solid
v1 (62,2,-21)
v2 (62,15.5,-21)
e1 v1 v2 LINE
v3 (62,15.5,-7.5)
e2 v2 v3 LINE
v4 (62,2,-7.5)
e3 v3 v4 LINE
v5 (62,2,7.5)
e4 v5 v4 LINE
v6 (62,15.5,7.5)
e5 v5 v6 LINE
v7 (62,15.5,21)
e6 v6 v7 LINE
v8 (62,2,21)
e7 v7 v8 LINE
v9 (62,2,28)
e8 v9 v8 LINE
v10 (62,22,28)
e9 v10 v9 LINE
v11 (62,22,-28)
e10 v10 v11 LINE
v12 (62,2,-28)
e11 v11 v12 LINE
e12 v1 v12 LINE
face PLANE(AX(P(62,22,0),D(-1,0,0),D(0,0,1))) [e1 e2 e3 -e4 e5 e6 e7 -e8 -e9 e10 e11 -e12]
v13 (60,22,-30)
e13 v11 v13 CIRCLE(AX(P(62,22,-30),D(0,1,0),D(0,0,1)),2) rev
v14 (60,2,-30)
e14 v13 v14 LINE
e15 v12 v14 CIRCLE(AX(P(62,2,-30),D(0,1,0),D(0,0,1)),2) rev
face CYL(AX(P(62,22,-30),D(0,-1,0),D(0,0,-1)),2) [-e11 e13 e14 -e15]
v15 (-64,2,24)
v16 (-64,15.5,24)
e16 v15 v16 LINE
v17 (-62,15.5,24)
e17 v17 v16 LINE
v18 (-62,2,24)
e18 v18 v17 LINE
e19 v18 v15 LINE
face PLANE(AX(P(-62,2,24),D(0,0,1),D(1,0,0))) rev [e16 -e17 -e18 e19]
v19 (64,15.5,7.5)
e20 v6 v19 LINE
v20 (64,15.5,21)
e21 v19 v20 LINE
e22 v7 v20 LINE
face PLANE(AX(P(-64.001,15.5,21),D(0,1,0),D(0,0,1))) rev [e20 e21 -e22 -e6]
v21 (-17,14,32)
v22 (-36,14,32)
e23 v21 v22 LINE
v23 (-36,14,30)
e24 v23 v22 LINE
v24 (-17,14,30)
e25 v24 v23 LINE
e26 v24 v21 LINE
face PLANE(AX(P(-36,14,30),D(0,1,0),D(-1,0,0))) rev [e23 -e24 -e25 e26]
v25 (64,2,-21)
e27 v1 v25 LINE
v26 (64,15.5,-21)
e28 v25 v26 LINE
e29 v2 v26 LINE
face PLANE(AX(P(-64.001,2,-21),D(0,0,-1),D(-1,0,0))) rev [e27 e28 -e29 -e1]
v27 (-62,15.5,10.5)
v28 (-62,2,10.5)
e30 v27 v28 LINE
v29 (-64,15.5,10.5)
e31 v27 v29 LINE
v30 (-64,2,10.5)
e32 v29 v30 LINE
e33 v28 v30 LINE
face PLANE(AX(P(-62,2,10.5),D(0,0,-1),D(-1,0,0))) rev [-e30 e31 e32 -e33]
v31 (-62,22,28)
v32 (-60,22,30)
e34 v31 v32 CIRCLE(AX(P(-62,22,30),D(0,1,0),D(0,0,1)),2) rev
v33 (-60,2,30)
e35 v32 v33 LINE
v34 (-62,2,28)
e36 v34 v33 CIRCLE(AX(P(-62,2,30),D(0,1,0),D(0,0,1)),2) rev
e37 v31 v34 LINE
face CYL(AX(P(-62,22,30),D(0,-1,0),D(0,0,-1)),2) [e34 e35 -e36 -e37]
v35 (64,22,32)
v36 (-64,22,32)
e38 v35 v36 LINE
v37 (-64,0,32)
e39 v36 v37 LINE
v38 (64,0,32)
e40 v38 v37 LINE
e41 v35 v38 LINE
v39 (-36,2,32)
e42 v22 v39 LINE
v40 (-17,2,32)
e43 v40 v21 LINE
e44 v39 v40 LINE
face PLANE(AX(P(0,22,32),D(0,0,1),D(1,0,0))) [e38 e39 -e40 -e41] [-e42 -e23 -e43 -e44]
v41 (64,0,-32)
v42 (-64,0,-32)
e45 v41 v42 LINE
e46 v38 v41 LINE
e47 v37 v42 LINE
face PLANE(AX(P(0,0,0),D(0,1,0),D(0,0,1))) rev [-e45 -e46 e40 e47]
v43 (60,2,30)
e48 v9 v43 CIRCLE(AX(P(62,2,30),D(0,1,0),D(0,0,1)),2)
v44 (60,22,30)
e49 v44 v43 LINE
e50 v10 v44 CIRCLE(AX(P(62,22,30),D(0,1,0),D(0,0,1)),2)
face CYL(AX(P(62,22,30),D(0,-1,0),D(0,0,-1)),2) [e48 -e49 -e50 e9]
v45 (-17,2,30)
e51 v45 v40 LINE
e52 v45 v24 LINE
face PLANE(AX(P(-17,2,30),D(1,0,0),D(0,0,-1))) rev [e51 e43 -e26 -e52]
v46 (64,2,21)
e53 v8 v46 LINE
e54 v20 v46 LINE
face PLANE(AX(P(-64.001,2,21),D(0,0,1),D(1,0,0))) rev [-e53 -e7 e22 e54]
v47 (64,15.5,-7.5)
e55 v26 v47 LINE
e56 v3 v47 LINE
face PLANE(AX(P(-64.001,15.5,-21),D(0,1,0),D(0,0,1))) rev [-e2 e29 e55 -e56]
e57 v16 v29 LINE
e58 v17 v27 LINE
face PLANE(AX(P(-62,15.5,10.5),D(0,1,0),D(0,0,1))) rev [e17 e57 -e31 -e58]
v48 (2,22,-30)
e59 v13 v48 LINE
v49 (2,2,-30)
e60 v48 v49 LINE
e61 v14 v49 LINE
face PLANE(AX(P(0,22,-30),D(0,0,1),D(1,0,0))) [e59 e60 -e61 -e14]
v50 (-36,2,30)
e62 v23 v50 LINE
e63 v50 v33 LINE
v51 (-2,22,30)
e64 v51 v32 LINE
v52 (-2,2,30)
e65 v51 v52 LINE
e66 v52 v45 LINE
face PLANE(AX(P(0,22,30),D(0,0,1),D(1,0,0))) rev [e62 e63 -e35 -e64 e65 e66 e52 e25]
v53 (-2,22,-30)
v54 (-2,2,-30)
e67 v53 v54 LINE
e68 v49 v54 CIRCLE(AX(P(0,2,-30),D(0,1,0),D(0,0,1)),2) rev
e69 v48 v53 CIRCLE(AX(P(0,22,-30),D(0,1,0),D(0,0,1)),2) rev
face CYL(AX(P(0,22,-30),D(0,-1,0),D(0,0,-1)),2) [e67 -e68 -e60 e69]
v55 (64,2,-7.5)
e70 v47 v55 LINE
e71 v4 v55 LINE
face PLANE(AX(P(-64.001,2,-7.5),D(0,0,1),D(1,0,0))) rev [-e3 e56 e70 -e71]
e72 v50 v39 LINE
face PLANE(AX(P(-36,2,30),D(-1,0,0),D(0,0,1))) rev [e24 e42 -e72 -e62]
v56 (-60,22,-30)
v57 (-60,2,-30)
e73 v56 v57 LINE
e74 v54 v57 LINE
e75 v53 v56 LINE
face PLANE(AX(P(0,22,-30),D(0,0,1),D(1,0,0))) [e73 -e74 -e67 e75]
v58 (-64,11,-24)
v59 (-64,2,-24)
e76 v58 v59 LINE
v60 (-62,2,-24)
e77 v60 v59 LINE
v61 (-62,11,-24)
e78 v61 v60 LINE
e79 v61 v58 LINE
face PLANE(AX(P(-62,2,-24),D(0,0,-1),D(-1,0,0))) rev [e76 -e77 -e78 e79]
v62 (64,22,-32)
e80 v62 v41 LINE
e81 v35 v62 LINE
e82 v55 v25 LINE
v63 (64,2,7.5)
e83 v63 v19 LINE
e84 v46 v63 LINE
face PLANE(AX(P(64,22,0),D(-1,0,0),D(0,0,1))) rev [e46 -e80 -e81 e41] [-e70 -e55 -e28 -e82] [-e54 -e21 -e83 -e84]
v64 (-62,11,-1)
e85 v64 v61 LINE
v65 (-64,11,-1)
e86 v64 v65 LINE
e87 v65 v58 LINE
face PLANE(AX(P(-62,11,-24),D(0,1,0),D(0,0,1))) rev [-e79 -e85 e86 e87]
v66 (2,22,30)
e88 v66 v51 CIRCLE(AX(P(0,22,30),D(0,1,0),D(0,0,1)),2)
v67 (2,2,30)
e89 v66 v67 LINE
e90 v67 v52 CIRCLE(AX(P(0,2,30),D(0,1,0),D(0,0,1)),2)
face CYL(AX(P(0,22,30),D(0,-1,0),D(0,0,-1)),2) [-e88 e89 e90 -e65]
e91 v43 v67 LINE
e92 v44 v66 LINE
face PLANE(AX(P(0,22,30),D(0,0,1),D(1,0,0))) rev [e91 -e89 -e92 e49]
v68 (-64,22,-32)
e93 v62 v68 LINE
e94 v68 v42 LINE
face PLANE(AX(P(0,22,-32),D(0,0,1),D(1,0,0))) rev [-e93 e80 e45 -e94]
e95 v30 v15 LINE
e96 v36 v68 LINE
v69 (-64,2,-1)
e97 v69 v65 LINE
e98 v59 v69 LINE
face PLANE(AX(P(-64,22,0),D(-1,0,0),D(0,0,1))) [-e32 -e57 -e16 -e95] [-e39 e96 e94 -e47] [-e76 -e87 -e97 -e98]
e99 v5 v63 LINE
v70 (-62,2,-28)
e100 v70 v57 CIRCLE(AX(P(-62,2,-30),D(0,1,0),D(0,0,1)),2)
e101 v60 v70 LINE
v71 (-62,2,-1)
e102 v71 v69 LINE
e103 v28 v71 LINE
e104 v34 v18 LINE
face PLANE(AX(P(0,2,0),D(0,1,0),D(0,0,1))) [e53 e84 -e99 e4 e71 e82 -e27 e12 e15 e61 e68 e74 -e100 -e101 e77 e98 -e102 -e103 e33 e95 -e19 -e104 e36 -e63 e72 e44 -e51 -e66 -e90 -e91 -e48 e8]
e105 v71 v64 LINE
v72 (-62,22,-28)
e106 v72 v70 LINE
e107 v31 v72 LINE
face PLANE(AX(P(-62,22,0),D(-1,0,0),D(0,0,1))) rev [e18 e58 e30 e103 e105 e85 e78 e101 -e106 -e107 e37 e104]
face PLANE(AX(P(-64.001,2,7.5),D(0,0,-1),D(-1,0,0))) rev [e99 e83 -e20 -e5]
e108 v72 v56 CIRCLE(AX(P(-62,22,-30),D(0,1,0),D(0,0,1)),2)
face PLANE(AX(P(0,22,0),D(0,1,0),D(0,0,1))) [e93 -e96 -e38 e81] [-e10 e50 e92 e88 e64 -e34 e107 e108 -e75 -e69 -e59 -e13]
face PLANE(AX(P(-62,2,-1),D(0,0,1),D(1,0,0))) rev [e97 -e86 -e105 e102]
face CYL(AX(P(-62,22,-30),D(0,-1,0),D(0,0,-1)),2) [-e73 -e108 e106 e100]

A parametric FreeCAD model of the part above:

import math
import FreeCAD as App
import Part
import Sketcher

V = App.Vector

doc = App.newDocument("Part")
body = doc.addObject("PartDesign::Body", "Body")

sketch1 = body.newObject("Sketcher::SketchObject", "Sketch")
sketch1.AttachmentSupport = (doc.getObject("XZ_Plane"), [""])
sketch1.MapMode = "FlatFace"
sketch1.addGeometry([
    Part.LineSegment(V(-64, -32, 0), V(-64, 32, 0)),
    Part.LineSegment(V(-64, 32, 0), V(64, 32, 0)),
    Part.LineSegment(V(64, 32, 0), V(64, -32, 0)),
    Part.LineSegment(V(64, -32, 0), V(-64, -32, 0)),
    Part.ArcOfCircle(Part.Circle(V(62, 30, 0), V(0, 0, 1), 2), math.radians(-180), math.radians(-90)),
    Part.LineSegment(V(60, 30, 0), V(2, 30, 0)),
    Part.ArcOfCircle(Part.Circle(V(0, 30, 0), V(0, 0, 1), 2), math.radians(180), math.radians(360)),
    Part.LineSegment(V(-2, 30, 0), V(-60, 30, 0)),
    Part.ArcOfCircle(Part.Circle(V(-62, 30, 0), V(0, 0, 1), 2), math.radians(-90), math.radians(0)),
    Part.LineSegment(V(-62, 28, 0), V(-62, -28, 0)),
    Part.ArcOfCircle(Part.Circle(V(-62, -30, 0), V(0, 0, 1), 2), math.radians(0), math.radians(90)),
    Part.LineSegment(V(-60, -30, 0), V(-2, -30, 0)),
    Part.ArcOfCircle(Part.Circle(V(0, -30, 0), V(0, 0, 1), 2), math.radians(0), math.radians(180)),
    Part.LineSegment(V(2, -30, 0), V(60, -30, 0)),
    Part.ArcOfCircle(Part.Circle(V(62, -30, 0), V(0, 0, 1), 2), math.radians(90), math.radians(180)),
    Part.LineSegment(V(62, -28, 0), V(62, 28, 0)),
], False)
sketch1.addConstraint([
    Sketcher.Constraint("Coincident", 0, 2, 1, 1),
    Sketcher.Constraint("Coincident", 1, 2, 2, 1),
    Sketcher.Constraint("Coincident", 2, 2, 3, 1),
    Sketcher.Constraint("Coincident", 3, 2, 0, 1),
    Sketcher.Constraint("Coincident", 4, 1, 5, 1),
    Sketcher.Constraint("Coincident", 5, 2, 6, 2),
    Sketcher.Constraint("Coincident", 6, 1, 7, 1),
    Sketcher.Constraint("Coincident", 7, 2, 8, 2),
    Sketcher.Constraint("Coincident", 8, 1, 9, 1),
    Sketcher.Constraint("Coincident", 9, 2, 10, 2),
    Sketcher.Constraint("Coincident", 10, 1, 11, 1),
    Sketcher.Constraint("Coincident", 11, 2, 12, 2),
    Sketcher.Constraint("Coincident", 12, 1, 13, 1),
    Sketcher.Constraint("Coincident", 13, 2, 14, 2),
    Sketcher.Constraint("Coincident", 14, 1, 15, 1),
    Sketcher.Constraint("Coincident", 15, 2, 4, 2),
    Sketcher.Constraint("Vertical", 0),
    Sketcher.Constraint("Horizontal", 1),
    Sketcher.Constraint("Vertical", 2),
    Sketcher.Constraint("Horizontal", 3),
    Sketcher.Constraint("Horizontal", 5),
    Sketcher.Constraint("Horizontal", 7),
    Sketcher.Constraint("Vertical", 9),
    Sketcher.Constraint("Horizontal", 11),
    Sketcher.Constraint("Horizontal", 13),
    Sketcher.Constraint("Vertical", 15),
    Sketcher.Constraint("Equal", 4, 6),
    Sketcher.Constraint("Equal", 6, 8),
    Sketcher.Constraint("Equal", 8, 10),
    Sketcher.Constraint("Equal", 10, 12),
    Sketcher.Constraint("Equal", 12, 14),
    Sketcher.Constraint("Symmetric", 4, 3, 10, 3, -1, 1),
    Sketcher.Constraint("Symmetric", 6, 3, 12, 3, -1, 1),
    Sketcher.Constraint("Symmetric", 8, 3, 14, 3, -1, 1),
    Sketcher.Constraint("Symmetric", 0, 2, 2, 2, -1, 1),
    Sketcher.Constraint("Symmetric", 4, 3, 8, 3, -2),
    Sketcher.Constraint("Symmetric", 5, 2, 6, 1, -2),
    Sketcher.Constraint("Horizontal", 4, 3, 6, 3),
    Sketcher.Constraint("Horizontal", 8, 3, 4, 1),
    Sketcher.Constraint("Horizontal", 14, 3, 10, 1),
    Sketcher.Constraint("Horizontal", 11, 2, 12, 1),
    Sketcher.Constraint("Vertical", 10, 3, 8, 1),
    Sketcher.Constraint("Vertical", 4, 3, 14, 1),
    Sketcher.Constraint("Radius", 4, 2.0),
    Sketcher.Constraint("DistanceX", 1, 1, 1, 2, 128.0),
    Sketcher.Constraint("DistanceX", 5, 2, 5, 1, 58.0),
    Sketcher.Constraint("DistanceY", 0, 1, 0, 2, 64.0),
    Sketcher.Constraint("DistanceY", 9, 2, 9, 1, 56.0),
])
pad1 = body.newObject("PartDesign::Pad", "Pad")
pad1.Profile = sketch1
pad1.Length = 22
pad1.Reversed = True

sketch2 = body.newObject("Sketcher::SketchObject", "Sketch001")
sketch2.AttachmentSupport = (doc.getObject("XZ_Plane"), [""])
sketch2.MapMode = "FlatFace"
sketch2.addGeometry([
    Part.ArcOfCircle(Part.Circle(V(62, -30, 0), V(0, 0, 1), 2), math.radians(90), math.radians(180)),
    Part.LineSegment(V(60, -30, 0), V(2, -30, 0)),
    Part.ArcOfCircle(Part.Circle(V(0, -30, 0), V(0, 0, 1), 2), math.radians(0), math.radians(180)),
    Part.LineSegment(V(-2, -30, 0), V(-60, -30, 0)),
    Part.ArcOfCircle(Part.Circle(V(-62, -30, 0), V(0, 0, 1), 2), math.radians(0), math.radians(90)),
    Part.LineSegment(V(-62, -28, 0), V(-62, 28, 0)),
    Part.ArcOfCircle(Part.Circle(V(-62, 30, 0), V(0, 0, 1), 2), math.radians(-90), math.radians(0)),
    Part.LineSegment(V(-60, 30, 0), V(-2, 30, 0)),
    Part.ArcOfCircle(Part.Circle(V(0, 30, 0), V(0, 0, 1), 2), math.radians(180), math.radians(360)),
    Part.LineSegment(V(2, 30, 0), V(60, 30, 0)),
    Part.ArcOfCircle(Part.Circle(V(62, 30, 0), V(0, 0, 1), 2), math.radians(-180), math.radians(-90)),
    Part.LineSegment(V(62, 28, 0), V(62, -28, 0)),
], False)
sketch2.addConstraint([
    Sketcher.Constraint("Coincident", 0, 2, 1, 1),
    Sketcher.Constraint("Coincident", 1, 2, 2, 1),
    Sketcher.Constraint("Coincident", 2, 2, 3, 1),
    Sketcher.Constraint("Coincident", 3, 2, 4, 1),
    Sketcher.Constraint("Coincident", 4, 2, 5, 1),
    Sketcher.Constraint("Coincident", 5, 2, 6, 1),
    Sketcher.Constraint("Coincident", 6, 2, 7, 1),
    Sketcher.Constraint("Coincident", 7, 2, 8, 1),
    Sketcher.Constraint("Coincident", 8, 2, 9, 1),
    Sketcher.Constraint("Coincident", 9, 2, 10, 1),
    Sketcher.Constraint("Coincident", 10, 2, 11, 1),
    Sketcher.Constraint("Coincident", 11, 2, 0, 1),
    Sketcher.Constraint("Horizontal", 1),
    Sketcher.Constraint("Horizontal", 3),
    Sketcher.Constraint("Vertical", 5),
    Sketcher.Constraint("Horizontal", 7),
    Sketcher.Constraint("Horizontal", 9),
    Sketcher.Constraint("Vertical", 11),
    Sketcher.Constraint("Equal", 0, 2),
    Sketcher.Constraint("Equal", 2, 4),
    Sketcher.Constraint("Equal", 4, 6),
    Sketcher.Constraint("Equal", 6, 8),
    Sketcher.Constraint("Equal", 8, 10),
    Sketcher.Constraint("Symmetric", 0, 3, 6, 3, -1, 1),
    Sketcher.Constraint("Symmetric", 2, 3, 8, 3, -1, 1),
    Sketcher.Constraint("Symmetric", 4, 3, 10, 3, -1, 1),
    Sketcher.Constraint("Symmetric", 0, 3, 4, 3, -2),
    Sketcher.Constraint("Symmetric", 1, 2, 2, 2, -2),
    Sketcher.Constraint("Horizontal", 0, 3, 2, 3),
    Sketcher.Constraint("Horizontal", 4, 3, 0, 2),
    Sketcher.Constraint("Horizontal", 10, 3, 6, 2),
    Sketcher.Constraint("Horizontal", 7, 2, 8, 2),
    Sketcher.Constraint("Vertical", 6, 3, 4, 2),
    Sketcher.Constraint("Vertical", 0, 3, 10, 2),
    Sketcher.Constraint("Radius", 0, 2.0),
    Sketcher.Constraint("DistanceX", 1, 2, 1, 1, 58.0),
    Sketcher.Constraint("DistanceY", 5, 1, 5, 2, 56.0),
])
pad2 = body.newObject("PartDesign::Pad", "Pad001")
pad2.Profile = sketch2
pad2.Length = 2
pad2.Reversed = True

sketch3 = body.newObject("Sketcher::SketchObject", "Sketch002")
sketch3.AttachmentSupport = (doc.getObject("YZ_Plane"), [""])
sketch3.MapMode = "FlatFace"
sketch3.AttachmentOffset = App.Placement(V(0, 0, 64), App.Rotation())
sketch3.addGeometry([
    Part.LineSegment(V(16, -8, 0), V(2, -8, 0)),
    Part.LineSegment(V(2, -8, 0), V(2, -21, 0)),
    Part.LineSegment(V(2, -21, 0), V(16, -21, 0)),
    Part.LineSegment(V(16, -21, 0), V(16, -8, 0)),
], False)
sketch3.addConstraint([
    Sketcher.Constraint("Coincident", 0, 2, 1, 1),
    Sketcher.Constraint("Coincident", 1, 2, 2, 1),
    Sketcher.Constraint("Coincident", 2, 2, 3, 1),
    Sketcher.Constraint("Coincident", 3, 2, 0, 1),
    Sketcher.Constraint("Horizontal", 0),
    Sketcher.Constraint("Vertical", 1),
    Sketcher.Constraint("Horizontal", 2),
    Sketcher.Constraint("Vertical", 3),
    Sketcher.Constraint("Equal", 2, 1),
    Sketcher.Constraint("DistanceX", 0, 2, 0, 1, 13.5),
    Sketcher.Constraint("DistanceX", -1, 1, 0, 2, 2.0),
    Sketcher.Constraint("DistanceY", 1, 2, -1, 1, 21.0),
])
pocket1 = body.newObject("PartDesign::Pocket", "Pocket")
pocket1.Profile = sketch3
pocket1.Type = "UpToFirst"

sketch4 = body.newObject("Sketcher::SketchObject", "Sketch003")
sketch4.AttachmentSupport = (doc.getObject("YZ_Plane"), [""])
sketch4.MapMode = "FlatFace"
sketch4.AttachmentOffset = App.Placement(V(0, 0, 64), App.Rotation())
sketch4.addGeometry([
    Part.LineSegment(V(16, 21, 0), V(2, 21, 0)),
    Part.LineSegment(V(2, 21, 0), V(2, 8, 0)),
    Part.LineSegment(V(2, 8, 0), V(16, 8, 0)),
    Part.LineSegment(V(16, 8, 0), V(16, 21, 0)),
], False)
sketch4.addConstraint([
    Sketcher.Constraint("Coincident", 0, 2, 1, 1),
    Sketcher.Constraint("Coincident", 1, 2, 2, 1),
    Sketcher.Constraint("Coincident", 2, 2, 3, 1),
    Sketcher.Constraint("Coincident", 3, 2, 0, 1),
    Sketcher.Constraint("Horizontal", 0),
    Sketcher.Constraint("Vertical", 1),
    Sketcher.Constraint("Horizontal", 2),
    Sketcher.Constraint("Vertical", 3),
    Sketcher.Constraint("Equal", 2, 1),
    Sketcher.Constraint("DistanceX", 0, 2, 0, 1, 13.5),
    Sketcher.Constraint("DistanceX", -1, 1, 0, 2, 2.0),
    Sketcher.Constraint("DistanceY", -1, 1, 0, 2, 21.0),
])
pocket2 = body.newObject("PartDesign::Pocket", "Pocket001")
pocket2.Profile = sketch4
pocket2.Type = "UpToFirst"

sketch5 = body.newObject("Sketcher::SketchObject", "Sketch004")
sketch5.AttachmentSupport = (doc.getObject("YZ_Plane"), [""])
sketch5.MapMode = "FlatFace"
sketch5.AttachmentOffset = App.Placement(V(0, 0, -64), App.Rotation())
sketch5.addGeometry([
    Part.LineSegment(V(11, -24, 0), V(2, -24, 0)),
    Part.LineSegment(V(2, -24, 0), V(2, -1, 0)),
    Part.LineSegment(V(2, -1, 0), V(11, -1, 0)),
    Part.LineSegment(V(11, -1, 0), V(11, -24, 0)),
    Part.LineSegment(V(16, 10, 0), V(2, 10, 0)),
    Part.LineSegment(V(2, 10, 0), V(2, 24, 0)),
    Part.LineSegment(V(2, 24, 0), V(16, 24, 0)),
    Part.LineSegment(V(16, 24, 0), V(16, 10, 0)),
], False)
sketch5.addConstraint([
    Sketcher.Constraint("Coincident", 0, 2, 1, 1),
    Sketcher.Constraint("Coincident", 1, 2, 2, 1),
    Sketcher.Constraint("Coincident", 2, 2, 3, 1),
    Sketcher.Constraint("Coincident", 3, 2, 0, 1),
    Sketcher.Constraint("Coincident", 4, 2, 5, 1),
    Sketcher.Constraint("Coincident", 5, 2, 6, 1),
    Sketcher.Constraint("Coincident", 6, 2, 7, 1),
    Sketcher.Constraint("Coincident", 7, 2, 4, 1),
    Sketcher.Constraint("Horizontal", 0),
    Sketcher.Constraint("Vertical", 1),
    Sketcher.Constraint("Horizontal", 2),
    Sketcher.Constraint("Vertical", 3),
    Sketcher.Constraint("Horizontal", 4),
    Sketcher.Constraint("Vertical", 5),
    Sketcher.Constraint("Horizontal", 6),
    Sketcher.Constraint("Vertical", 7),
    Sketcher.Constraint("Symmetric", 0, 2, 5, 2, -1),
    Sketcher.Constraint("Equal", 6, 5),
    Sketcher.Constraint("DistanceX", 0, 2, 0, 1, 9.0),
    Sketcher.Constraint("DistanceY", 1, 1, 1, 2, 23.0),
    Sketcher.Constraint("DistanceX", 4, 2, 4, 1, 13.5),
    Sketcher.Constraint("DistanceX", -1, 1, 0, 2, 2.0),
    Sketcher.Constraint("DistanceY", 0, 2, -1, 1, 24.0),
])
pocket3 = body.newObject("PartDesign::Pocket", "Pocket002")
pocket3.Profile = sketch5
pocket3.Length = 2
pocket3.Reversed = True

sketch6 = body.newObject("Sketcher::SketchObject", "Sketch005")
sketch6.AttachmentSupport = (doc.getObject("XY_Plane"), [""])
sketch6.MapMode = "FlatFace"
sketch6.AttachmentOffset = App.Placement(V(0, 0, 32), App.Rotation())
sketch6.addGeometry([
    Part.LineSegment(V(-36, 14, 0), V(-36, 2, 0)),
    Part.LineSegment(V(-36, 2, 0), V(-17, 2, 0)),
    Part.LineSegment(V(-17, 2, 0), V(-17, 14, 0)),
    Part.LineSegment(V(-17, 14, 0), V(-36, 14, 0)),
], False)
sketch6.addConstraint([
    Sketcher.Constraint("Coincident", 0, 2, 1, 1),
    Sketcher.Constraint("Coincident", 1, 2, 2, 1),
    Sketcher.Constraint("Coincident", 2, 2, 3, 1),
    Sketcher.Constraint("Coincident", 3, 2, 0, 1),
    Sketcher.Constraint("Vertical", 0),
    Sketcher.Constraint("Horizontal", 1),
    Sketcher.Constraint("Vertical", 2),
    Sketcher.Constraint("Horizontal", 3),
    Sketcher.Constraint("DistanceX", 1, 1, 1, 2, 19.0),
    Sketcher.Constraint("DistanceY", 0, 2, 0, 1, 12.0),
    Sketcher.Constraint("DistanceX", 0, 2, -1, 1, 36.0),
    Sketcher.Constraint("DistanceY", -1, 1, 0, 2, 2.0),
])
pocket4 = body.newObject("PartDesign::Pocket", "Pocket003")
pocket4.Profile = sketch6
pocket4.Length = 2

doc.recompute()
